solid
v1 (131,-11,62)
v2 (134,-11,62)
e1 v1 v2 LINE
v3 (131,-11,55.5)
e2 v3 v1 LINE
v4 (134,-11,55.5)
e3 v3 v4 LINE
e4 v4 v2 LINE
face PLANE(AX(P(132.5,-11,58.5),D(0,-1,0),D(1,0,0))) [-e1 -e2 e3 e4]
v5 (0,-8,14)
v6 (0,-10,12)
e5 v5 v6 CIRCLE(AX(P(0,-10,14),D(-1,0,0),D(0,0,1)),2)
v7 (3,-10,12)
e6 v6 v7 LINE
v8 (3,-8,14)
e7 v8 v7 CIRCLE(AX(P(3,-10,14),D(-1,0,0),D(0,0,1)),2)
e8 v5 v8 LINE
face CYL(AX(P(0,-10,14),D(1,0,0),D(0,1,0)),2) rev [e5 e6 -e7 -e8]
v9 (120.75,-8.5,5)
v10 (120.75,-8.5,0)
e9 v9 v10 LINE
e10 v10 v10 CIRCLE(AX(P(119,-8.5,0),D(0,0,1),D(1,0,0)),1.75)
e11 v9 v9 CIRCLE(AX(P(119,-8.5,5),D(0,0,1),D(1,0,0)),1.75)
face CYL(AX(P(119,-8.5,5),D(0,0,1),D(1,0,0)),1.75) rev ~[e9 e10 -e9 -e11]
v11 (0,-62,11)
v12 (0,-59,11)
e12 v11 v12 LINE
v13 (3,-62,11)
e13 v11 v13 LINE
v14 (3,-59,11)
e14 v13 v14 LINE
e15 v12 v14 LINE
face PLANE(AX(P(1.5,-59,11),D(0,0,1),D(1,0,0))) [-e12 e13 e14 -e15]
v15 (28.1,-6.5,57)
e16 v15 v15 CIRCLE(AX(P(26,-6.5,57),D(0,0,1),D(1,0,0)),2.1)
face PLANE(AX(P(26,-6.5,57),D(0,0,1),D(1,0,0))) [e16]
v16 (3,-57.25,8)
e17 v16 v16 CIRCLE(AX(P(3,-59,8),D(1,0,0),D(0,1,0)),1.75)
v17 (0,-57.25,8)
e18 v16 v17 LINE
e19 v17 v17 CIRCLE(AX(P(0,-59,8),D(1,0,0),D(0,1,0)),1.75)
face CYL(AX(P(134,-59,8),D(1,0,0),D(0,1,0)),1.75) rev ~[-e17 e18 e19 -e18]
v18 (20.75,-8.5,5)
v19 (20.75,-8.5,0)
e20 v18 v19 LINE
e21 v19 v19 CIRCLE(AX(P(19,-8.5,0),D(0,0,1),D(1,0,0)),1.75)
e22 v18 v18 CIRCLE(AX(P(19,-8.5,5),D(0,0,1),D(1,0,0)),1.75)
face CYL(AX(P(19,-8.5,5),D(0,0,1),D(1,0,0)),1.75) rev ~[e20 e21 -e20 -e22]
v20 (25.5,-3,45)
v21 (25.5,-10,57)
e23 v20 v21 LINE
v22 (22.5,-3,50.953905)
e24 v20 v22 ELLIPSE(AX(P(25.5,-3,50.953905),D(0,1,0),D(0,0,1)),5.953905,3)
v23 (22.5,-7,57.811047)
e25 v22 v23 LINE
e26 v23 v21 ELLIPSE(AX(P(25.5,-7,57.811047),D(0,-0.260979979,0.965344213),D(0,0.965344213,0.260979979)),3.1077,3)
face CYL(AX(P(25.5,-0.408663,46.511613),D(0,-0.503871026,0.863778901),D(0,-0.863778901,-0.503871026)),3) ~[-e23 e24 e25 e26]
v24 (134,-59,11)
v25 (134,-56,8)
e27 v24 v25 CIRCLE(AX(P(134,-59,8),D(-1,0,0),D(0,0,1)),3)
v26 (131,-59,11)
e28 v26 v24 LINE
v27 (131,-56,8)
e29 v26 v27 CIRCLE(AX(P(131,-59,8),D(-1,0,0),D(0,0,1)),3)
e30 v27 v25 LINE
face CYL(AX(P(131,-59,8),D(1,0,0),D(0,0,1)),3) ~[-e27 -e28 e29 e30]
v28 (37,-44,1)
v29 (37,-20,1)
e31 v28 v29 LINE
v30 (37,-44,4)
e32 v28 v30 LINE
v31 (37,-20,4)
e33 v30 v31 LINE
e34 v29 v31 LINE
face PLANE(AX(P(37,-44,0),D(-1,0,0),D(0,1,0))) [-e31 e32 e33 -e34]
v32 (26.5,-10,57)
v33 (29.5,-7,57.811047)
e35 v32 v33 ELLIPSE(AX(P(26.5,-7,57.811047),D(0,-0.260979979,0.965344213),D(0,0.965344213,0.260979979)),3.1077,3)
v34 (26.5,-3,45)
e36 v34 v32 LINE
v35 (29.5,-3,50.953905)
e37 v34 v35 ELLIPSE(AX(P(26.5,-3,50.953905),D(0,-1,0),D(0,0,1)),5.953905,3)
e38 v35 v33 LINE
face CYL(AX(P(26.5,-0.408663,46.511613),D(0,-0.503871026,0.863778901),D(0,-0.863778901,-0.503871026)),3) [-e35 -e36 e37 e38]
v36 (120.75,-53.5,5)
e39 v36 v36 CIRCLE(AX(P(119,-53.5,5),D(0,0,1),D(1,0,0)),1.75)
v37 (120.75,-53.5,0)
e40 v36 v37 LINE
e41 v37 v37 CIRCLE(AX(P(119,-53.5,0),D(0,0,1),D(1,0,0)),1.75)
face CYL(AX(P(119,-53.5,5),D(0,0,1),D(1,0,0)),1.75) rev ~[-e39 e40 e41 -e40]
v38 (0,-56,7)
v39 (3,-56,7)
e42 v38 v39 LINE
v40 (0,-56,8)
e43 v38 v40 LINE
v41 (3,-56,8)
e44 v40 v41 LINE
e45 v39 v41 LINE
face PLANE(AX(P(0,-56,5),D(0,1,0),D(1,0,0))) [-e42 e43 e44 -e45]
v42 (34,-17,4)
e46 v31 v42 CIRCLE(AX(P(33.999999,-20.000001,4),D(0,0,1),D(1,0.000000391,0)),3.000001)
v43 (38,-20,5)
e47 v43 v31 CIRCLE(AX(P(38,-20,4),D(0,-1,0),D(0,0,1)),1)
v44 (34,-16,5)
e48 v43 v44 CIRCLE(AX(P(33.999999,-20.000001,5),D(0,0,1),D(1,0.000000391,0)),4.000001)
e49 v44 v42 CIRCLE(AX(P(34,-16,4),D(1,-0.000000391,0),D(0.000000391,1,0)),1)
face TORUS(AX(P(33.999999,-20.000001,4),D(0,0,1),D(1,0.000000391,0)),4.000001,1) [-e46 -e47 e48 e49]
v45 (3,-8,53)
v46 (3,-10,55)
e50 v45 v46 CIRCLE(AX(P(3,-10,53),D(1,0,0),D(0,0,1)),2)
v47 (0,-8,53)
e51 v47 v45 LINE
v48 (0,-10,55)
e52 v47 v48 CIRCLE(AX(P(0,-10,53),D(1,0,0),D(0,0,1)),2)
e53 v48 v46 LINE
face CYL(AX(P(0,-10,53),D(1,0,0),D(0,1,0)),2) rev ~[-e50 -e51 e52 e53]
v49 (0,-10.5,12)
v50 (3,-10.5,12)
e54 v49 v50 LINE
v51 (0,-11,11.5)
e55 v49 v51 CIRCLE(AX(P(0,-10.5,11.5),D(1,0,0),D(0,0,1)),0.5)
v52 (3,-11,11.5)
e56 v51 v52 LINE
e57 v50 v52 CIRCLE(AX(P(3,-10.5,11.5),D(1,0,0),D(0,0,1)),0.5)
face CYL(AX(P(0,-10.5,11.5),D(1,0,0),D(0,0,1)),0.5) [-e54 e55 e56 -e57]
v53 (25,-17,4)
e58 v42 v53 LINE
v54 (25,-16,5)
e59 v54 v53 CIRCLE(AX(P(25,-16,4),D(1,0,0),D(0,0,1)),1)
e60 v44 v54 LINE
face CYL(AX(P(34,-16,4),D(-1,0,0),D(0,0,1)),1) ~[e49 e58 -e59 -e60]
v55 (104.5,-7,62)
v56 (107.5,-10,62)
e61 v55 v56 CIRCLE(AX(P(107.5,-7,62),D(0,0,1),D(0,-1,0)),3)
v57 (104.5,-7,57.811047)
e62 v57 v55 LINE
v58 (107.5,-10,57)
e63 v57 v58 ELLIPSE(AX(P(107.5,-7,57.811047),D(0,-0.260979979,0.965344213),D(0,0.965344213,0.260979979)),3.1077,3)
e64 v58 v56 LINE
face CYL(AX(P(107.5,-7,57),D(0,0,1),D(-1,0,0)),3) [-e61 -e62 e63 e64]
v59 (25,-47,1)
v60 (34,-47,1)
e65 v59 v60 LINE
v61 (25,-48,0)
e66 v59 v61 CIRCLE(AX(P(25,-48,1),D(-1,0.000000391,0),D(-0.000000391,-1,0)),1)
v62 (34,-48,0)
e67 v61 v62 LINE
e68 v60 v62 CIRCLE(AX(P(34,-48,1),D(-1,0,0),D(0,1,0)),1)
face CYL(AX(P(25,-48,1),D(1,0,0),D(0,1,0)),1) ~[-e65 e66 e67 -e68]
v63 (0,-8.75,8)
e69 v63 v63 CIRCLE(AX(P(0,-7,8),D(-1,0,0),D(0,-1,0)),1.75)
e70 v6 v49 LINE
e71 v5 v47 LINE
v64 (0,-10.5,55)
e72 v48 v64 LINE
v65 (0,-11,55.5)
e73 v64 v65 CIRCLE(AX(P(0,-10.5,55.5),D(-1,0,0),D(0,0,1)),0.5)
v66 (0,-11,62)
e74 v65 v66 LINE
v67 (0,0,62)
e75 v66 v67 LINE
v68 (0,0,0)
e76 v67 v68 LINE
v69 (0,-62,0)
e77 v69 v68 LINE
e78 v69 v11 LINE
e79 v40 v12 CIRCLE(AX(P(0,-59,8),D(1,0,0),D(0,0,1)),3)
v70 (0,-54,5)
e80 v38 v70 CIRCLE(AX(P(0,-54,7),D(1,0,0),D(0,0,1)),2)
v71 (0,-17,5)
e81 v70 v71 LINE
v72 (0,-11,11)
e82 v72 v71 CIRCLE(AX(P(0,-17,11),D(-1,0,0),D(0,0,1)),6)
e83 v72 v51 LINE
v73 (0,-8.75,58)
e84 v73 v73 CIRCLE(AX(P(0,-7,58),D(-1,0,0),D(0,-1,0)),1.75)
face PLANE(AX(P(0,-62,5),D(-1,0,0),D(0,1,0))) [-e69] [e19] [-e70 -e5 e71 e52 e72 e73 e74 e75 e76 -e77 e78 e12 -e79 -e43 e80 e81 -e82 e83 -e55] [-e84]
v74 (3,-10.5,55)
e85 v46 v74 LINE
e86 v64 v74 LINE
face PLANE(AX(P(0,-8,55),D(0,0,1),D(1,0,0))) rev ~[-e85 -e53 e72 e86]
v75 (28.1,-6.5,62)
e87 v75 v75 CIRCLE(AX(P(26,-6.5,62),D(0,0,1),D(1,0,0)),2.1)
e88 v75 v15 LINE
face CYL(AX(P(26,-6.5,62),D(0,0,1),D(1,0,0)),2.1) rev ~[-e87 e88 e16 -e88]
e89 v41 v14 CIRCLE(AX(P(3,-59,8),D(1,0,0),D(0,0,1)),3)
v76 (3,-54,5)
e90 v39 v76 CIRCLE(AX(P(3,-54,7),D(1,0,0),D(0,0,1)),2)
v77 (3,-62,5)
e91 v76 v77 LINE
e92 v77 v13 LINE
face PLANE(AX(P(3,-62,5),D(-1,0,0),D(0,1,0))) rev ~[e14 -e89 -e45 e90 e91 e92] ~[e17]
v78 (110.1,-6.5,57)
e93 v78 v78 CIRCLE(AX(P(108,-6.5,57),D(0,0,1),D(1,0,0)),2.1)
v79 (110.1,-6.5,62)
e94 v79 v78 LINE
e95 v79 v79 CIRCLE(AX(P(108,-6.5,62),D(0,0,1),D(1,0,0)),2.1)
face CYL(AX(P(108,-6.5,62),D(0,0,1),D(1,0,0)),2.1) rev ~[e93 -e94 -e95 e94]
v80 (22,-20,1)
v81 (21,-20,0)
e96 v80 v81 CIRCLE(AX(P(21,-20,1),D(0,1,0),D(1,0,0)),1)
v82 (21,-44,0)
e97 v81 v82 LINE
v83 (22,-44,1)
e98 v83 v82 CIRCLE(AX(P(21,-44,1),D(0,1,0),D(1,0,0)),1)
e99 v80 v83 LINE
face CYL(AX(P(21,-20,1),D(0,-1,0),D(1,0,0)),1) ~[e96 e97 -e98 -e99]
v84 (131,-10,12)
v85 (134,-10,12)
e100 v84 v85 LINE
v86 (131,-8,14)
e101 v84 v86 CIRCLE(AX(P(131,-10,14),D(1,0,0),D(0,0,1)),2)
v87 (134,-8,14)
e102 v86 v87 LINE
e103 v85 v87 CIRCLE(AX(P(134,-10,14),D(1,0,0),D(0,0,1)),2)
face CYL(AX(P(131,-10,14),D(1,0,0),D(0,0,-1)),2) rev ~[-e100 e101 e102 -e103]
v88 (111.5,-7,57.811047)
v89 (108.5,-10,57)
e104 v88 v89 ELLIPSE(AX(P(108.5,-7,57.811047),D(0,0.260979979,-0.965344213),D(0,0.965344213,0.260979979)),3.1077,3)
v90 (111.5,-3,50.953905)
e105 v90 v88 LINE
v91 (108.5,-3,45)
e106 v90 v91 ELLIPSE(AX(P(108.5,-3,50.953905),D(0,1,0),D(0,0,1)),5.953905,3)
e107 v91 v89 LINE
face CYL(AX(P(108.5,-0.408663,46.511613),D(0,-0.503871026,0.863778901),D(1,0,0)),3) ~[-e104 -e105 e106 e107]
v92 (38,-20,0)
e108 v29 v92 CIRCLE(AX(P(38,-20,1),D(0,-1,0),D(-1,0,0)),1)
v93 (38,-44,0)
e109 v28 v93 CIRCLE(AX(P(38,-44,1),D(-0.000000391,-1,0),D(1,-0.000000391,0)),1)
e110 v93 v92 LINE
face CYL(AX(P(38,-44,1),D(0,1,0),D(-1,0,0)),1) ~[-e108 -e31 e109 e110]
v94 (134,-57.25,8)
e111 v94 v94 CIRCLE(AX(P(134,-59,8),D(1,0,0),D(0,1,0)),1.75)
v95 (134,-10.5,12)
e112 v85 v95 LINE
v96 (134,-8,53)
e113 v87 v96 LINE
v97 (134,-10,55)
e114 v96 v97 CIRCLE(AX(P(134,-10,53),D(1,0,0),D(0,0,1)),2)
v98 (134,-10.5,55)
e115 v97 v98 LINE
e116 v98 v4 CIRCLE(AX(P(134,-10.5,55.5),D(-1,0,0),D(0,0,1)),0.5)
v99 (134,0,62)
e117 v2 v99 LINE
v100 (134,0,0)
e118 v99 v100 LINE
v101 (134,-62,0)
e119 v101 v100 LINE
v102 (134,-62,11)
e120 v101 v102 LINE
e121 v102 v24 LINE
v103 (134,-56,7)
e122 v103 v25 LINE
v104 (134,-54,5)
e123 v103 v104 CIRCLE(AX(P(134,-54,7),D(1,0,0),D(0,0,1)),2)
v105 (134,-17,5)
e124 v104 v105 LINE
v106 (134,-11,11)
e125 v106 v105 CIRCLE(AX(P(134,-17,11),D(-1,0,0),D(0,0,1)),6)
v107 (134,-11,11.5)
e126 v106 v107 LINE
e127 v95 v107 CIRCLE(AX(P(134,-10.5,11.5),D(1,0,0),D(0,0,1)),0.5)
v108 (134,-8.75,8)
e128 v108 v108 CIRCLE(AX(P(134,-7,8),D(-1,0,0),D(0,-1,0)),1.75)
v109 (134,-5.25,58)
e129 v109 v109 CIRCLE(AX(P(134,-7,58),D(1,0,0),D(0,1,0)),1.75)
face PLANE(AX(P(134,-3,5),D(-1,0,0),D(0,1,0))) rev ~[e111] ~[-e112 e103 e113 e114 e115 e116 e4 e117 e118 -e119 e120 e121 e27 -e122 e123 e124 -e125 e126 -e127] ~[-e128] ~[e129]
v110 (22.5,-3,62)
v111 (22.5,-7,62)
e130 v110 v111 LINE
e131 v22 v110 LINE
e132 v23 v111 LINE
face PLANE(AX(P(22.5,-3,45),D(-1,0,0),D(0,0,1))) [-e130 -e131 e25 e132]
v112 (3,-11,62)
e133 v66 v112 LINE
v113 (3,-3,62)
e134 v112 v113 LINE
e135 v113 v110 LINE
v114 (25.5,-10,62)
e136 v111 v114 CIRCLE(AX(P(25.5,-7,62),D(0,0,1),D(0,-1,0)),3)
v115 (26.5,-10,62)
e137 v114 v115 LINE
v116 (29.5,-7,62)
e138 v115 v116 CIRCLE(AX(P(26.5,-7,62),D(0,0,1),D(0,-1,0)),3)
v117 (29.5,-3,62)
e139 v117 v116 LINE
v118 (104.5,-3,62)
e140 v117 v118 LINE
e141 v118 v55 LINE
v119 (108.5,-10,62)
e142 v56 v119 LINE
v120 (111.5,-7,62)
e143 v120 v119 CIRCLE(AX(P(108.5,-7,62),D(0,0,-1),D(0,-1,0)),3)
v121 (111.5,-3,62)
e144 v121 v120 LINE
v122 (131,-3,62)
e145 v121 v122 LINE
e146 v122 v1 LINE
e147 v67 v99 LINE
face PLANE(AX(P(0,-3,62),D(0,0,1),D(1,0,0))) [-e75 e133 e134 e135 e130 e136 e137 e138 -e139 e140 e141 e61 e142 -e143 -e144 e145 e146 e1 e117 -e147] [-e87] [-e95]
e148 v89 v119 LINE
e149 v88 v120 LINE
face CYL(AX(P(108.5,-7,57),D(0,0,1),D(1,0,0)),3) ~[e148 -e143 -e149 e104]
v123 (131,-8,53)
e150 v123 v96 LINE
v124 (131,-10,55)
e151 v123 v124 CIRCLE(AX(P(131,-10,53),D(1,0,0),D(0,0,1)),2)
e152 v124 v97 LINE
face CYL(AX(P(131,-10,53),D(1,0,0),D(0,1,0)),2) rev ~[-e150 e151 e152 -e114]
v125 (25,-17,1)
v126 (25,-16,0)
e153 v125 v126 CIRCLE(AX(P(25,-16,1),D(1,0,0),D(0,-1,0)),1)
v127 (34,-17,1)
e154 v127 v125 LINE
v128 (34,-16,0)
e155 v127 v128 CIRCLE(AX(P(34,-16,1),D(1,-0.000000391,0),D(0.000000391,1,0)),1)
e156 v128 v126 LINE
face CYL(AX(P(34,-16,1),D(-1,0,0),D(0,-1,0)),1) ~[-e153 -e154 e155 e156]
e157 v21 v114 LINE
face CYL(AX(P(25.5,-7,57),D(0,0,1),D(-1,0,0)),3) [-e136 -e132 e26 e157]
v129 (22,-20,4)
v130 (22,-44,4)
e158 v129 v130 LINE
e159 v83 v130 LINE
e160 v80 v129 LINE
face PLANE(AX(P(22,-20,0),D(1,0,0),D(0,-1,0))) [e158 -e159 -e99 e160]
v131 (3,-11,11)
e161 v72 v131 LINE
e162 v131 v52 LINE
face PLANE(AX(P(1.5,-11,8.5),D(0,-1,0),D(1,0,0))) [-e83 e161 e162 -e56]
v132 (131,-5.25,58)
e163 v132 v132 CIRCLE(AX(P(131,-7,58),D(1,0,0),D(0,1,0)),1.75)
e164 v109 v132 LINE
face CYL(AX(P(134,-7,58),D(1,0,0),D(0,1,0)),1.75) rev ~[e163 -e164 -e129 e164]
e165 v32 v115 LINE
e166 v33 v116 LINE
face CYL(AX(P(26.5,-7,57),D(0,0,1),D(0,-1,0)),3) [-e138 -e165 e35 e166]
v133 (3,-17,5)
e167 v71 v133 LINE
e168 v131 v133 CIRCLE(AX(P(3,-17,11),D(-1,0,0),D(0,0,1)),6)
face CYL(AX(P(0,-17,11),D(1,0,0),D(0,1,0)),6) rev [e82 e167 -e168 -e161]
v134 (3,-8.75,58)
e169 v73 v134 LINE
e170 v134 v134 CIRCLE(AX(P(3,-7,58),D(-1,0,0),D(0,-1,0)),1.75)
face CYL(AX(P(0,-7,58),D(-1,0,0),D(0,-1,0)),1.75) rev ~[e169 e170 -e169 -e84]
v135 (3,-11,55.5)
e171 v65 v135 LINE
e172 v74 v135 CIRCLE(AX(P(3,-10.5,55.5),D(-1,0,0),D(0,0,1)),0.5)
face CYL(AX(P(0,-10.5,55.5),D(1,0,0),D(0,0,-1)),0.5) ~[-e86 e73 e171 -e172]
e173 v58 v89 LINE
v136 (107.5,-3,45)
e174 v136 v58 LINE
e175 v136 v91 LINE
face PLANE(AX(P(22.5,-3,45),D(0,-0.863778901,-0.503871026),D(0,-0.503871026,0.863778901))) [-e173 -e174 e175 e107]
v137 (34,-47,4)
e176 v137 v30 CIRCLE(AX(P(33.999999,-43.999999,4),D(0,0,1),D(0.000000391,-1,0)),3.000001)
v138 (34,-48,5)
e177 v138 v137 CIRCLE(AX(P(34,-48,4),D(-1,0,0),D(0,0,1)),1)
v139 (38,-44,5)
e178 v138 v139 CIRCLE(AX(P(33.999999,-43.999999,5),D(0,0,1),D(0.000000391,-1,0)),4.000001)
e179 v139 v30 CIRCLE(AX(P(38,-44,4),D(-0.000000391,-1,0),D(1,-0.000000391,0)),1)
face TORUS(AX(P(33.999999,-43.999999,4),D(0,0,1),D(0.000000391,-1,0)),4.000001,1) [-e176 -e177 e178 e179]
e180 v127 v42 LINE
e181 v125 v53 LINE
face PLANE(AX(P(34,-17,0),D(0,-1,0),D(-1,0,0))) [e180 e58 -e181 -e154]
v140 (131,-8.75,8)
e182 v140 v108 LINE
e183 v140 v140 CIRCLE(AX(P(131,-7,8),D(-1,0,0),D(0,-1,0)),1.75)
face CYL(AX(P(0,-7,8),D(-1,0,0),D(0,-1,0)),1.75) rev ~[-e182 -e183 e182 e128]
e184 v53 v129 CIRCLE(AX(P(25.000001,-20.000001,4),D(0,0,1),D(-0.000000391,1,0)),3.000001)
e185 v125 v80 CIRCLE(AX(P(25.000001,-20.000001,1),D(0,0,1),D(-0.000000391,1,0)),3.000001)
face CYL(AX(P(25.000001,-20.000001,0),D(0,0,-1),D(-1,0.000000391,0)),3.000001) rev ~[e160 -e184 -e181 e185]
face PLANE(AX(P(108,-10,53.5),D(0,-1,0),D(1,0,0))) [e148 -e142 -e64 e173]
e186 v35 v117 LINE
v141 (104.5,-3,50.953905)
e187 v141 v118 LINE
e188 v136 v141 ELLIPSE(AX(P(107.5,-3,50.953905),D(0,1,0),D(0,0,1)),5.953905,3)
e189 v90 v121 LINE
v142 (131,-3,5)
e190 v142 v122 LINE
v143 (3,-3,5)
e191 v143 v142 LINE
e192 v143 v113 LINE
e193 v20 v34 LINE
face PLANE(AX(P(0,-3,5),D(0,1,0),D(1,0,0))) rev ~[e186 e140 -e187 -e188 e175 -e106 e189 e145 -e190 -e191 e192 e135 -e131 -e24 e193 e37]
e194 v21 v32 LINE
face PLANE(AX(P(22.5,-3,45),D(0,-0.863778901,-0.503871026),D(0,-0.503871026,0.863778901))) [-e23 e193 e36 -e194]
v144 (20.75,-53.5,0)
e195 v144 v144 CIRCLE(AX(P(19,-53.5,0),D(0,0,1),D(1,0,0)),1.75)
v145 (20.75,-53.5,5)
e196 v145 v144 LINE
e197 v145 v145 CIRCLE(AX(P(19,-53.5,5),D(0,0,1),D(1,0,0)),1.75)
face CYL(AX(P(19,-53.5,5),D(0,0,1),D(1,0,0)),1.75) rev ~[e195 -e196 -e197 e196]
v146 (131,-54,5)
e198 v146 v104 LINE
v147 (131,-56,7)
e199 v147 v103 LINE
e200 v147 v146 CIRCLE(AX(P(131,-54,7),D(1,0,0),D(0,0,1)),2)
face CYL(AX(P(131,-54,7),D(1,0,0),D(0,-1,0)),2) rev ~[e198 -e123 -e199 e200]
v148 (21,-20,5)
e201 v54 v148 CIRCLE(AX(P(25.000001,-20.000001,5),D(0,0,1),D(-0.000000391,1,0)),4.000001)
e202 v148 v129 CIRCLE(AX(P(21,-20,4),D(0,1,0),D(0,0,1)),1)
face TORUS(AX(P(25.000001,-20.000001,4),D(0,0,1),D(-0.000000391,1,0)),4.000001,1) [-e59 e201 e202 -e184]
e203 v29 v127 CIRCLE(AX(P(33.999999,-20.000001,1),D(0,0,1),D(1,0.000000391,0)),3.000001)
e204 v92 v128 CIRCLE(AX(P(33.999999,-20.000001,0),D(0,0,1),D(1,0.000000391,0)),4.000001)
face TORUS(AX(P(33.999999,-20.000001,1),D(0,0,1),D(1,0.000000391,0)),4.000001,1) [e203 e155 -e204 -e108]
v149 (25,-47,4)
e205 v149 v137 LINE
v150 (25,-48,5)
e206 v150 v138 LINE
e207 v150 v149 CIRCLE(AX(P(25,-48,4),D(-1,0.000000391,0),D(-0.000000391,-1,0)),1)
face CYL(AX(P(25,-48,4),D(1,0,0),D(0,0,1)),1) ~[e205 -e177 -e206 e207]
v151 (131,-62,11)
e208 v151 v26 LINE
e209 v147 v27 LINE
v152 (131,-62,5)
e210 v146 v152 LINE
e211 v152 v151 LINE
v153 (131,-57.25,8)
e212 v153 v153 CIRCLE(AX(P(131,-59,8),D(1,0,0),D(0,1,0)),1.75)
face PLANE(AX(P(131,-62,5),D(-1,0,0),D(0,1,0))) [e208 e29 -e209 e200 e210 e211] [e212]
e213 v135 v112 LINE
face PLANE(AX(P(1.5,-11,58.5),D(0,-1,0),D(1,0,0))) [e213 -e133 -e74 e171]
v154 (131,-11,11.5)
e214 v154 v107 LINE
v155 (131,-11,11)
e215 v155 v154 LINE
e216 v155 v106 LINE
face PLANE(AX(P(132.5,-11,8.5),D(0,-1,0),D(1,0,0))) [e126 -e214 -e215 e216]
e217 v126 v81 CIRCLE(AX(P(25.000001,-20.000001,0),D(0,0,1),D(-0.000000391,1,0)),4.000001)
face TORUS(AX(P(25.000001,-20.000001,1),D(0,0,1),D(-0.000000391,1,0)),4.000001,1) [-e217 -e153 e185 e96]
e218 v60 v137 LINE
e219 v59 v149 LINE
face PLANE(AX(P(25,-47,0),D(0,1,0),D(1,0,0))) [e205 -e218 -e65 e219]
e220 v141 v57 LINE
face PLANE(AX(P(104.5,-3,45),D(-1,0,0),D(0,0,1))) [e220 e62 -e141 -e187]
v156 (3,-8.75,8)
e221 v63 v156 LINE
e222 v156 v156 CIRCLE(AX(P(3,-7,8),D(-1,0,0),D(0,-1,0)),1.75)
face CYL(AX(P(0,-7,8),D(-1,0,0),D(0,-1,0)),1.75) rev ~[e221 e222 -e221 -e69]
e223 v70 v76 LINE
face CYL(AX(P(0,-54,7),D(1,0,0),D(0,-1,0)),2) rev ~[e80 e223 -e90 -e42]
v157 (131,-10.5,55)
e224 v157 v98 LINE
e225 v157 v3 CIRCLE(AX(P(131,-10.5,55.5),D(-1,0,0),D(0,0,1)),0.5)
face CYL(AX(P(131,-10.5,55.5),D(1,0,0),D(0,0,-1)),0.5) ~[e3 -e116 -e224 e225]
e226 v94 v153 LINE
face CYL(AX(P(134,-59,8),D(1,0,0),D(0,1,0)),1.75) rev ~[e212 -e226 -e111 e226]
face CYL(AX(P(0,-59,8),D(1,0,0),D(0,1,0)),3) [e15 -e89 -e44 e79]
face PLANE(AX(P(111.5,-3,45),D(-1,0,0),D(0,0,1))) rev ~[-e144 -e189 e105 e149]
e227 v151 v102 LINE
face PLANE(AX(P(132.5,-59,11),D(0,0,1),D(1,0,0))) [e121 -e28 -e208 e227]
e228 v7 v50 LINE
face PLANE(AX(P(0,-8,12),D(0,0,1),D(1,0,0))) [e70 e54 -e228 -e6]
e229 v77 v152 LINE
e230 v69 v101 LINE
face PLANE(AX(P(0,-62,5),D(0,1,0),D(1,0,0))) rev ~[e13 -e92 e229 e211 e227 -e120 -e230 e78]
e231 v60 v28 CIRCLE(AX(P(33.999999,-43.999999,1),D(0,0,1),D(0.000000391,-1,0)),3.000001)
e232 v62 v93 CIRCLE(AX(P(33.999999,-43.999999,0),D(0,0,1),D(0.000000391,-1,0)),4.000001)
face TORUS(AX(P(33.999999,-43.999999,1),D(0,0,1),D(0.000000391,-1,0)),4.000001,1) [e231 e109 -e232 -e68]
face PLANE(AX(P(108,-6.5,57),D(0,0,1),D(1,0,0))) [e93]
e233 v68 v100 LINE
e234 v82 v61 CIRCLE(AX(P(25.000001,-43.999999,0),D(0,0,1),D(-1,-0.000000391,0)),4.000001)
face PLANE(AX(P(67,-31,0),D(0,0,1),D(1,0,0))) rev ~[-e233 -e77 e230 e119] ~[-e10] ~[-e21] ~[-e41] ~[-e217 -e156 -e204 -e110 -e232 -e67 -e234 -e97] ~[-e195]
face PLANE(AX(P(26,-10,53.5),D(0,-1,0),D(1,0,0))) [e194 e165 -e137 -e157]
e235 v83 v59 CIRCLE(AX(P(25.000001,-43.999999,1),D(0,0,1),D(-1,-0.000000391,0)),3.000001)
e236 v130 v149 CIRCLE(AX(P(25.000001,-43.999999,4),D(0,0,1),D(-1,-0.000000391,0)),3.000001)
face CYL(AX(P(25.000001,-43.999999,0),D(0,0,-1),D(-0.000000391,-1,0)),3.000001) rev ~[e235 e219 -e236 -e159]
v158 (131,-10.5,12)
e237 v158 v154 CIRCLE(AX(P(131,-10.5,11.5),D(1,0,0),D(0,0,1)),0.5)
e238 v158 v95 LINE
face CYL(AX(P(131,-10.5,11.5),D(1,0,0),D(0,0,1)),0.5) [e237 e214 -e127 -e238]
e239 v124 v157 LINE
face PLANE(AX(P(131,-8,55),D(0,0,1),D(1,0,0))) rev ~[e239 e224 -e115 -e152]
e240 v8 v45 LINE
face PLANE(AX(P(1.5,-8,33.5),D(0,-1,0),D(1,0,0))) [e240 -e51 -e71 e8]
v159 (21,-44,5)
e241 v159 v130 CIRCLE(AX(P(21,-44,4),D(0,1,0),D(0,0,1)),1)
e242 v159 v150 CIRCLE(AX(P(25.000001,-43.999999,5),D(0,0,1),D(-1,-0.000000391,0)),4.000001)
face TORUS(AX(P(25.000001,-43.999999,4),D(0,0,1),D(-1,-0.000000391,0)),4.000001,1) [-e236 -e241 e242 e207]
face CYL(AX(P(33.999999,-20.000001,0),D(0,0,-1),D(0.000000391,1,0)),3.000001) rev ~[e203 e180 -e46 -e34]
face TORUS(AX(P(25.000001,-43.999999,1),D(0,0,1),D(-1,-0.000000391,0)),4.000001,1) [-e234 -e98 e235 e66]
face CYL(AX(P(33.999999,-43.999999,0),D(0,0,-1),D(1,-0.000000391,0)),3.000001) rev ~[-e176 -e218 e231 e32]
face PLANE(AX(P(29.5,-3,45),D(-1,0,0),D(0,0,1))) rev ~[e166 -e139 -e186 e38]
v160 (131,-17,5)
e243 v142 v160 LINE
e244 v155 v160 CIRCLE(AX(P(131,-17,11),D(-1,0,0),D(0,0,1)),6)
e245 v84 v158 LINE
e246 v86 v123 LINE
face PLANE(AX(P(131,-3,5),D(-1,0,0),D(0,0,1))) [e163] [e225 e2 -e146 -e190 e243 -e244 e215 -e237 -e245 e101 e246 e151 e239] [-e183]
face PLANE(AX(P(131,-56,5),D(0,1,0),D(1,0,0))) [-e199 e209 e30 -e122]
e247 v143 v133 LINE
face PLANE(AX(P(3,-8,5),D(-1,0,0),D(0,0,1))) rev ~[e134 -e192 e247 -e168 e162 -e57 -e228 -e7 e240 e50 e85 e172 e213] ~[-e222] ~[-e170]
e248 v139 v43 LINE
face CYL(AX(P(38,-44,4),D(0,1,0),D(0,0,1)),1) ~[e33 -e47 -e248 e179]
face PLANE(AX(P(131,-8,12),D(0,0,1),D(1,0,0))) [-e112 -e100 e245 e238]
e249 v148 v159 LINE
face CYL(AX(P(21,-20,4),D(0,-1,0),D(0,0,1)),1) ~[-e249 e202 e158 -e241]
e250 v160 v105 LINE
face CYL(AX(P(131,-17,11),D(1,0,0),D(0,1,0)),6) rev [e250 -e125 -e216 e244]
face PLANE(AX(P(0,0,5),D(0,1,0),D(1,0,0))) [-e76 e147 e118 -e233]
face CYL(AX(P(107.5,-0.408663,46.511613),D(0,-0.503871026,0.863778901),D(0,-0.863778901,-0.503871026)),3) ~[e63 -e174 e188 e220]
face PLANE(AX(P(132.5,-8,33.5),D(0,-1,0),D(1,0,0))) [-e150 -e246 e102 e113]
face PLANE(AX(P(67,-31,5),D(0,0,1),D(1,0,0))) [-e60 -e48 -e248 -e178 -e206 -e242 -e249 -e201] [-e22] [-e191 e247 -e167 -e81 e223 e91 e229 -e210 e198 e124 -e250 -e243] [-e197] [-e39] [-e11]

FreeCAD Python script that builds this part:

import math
import FreeCAD as App
import Part
import Sketcher
from FreeCAD import Vector
Q = App.Units.Quantity


def edges_at(feature, points):
    """Names of the edges that pass closest to the given points."""
    edges = feature.Shape.Edges
    near = lambda p: min(range(len(edges)), key=lambda i: edges[i].distToShape(Part.Vertex(*p))[0])
    return sorted({f"Edge{near(p) + 1}" for p in points})


def add_polygon(sketch, points):
    """Adds a closed chain of lines whose ends are joined by coincident constraints."""
    first, n = sketch.GeometryCount, len(points)
    for a, b in zip(points, points[1:] + points[:1]):
        sketch.addGeometry(Part.LineSegment(App.Vector(*a, 0), App.Vector(*b, 0)), False)
    for i in range(n):
        sketch.addConstraint(Sketcher.Constraint("Coincident", first + i, 2, first + (i + 1) % n, 1))

doc = App.newDocument("Part")
params = doc.addObject("Spreadsheet::Sheet", "Params")
for row, (alias, value) in enumerate([
    ("sketch1_width", "134 mm"),
    ("sketch1_height", "62 mm"),
    ("pad1_length", "5 mm"),
    ("sketch2_width", "134 mm"),
    ("sketch2_height", "3 mm"),
    ("pad2_length", "57 mm"),
    ("sketch3_width", "7 mm"),
    ("sketch3_height", "17 mm"),
    ("pad3_length", "7 mm"),
    ("sketch4_width", "7 mm"),
    ("sketch4_height", "12 mm"),
    ("pocket1_length", "89 mm"),
    ("fillet_radius", "3 mm"),
    ("sketch5_width", "3 mm"),
    ("sketch5_height", "57 mm"),
    ("pad4_length", "5 mm"),
    ("sketch6_width", "3 mm"),
    ("sketch6_height", "7 mm"),
    ("pad5_length", "3 mm"),
    ("sketch7_diameter", "3.5 mm"),
    ("sketch8_diameter", "3.5 mm"),
    ("pocket3_length", "5 mm"),
    ("sketch9_diameter", "3.5 mm"),
    ("pocket4_length", "5 mm"),
    ("sketch10_width", "3 mm"),
    ("sketch10_height", "6 mm"),
    ("pad6_length", "6 mm"),
    ("sketch11_diameter", "3.5 mm"),
    ("fillet2_radius", "3 mm"),
    ("fillet3_radius", "2 mm"),
    ("fillet4_radius", "3 mm"),
    ("fillet5_radius", "2 mm"),
    ("fillet6_radius", "6 mm"),
    ("fillet7_radius", "6 mm"),
    ("fillet8_radius", "2 mm"),
    ("fillet9_radius", "0.5 mm"),
    ("fillet10_radius", "2 mm"),
    ("fillet11_radius", "0.5 mm"),
    ("fillet12_radius", "2 mm"),
    ("fillet13_radius", "0.5 mm"),
    ("fillet14_radius", "2 mm"),
    ("fillet15_radius", "0.5 mm"),
    ("sketch12_diameter", "3.5 mm"),
    ("pocket6_length", "5 mm"),
    ("sketch13_diameter", "4.2 mm"),
    ("pocket7_length", "5 mm"),
    ("sketch14_radius", "3.000001 mm"),
    ("sketch14_width", "9 mm"),
    ("sketch14_height", "24 mm"),
    ("pocket8_length", "5 mm"),
    ("fillet16_radius", "1 mm"),
    ("fillet17_radius", "1 mm"),
], start=1):
    params.set(f"A{row}", alias)
    params.set(f"B{row}", "=" + value)
    params.setAlias(f"B{row}", alias)

body = doc.addObject("PartDesign::Body", "Body")

# Sketch on XY plane
sketch1 = body.newObject("Sketcher::SketchObject", "Sketch")
sketch1.AttachmentSupport = (doc.getObject("XY_Plane"), [""])
sketch1.MapMode = "FlatFace"
add_polygon(sketch1, [(0, 0), (0, -62), (134, -62), (134, 0)])  # lines 0-3
sketch1.addConstraint(Sketcher.Constraint("Vertical", 0))
sketch1.addConstraint(Sketcher.Constraint("Horizontal", 1))
sketch1.addConstraint(Sketcher.Constraint("Vertical", 2))
sketch1.addConstraint(Sketcher.Constraint("Horizontal", 3))
sketch1.addConstraint(Sketcher.Constraint("Coincident", 3, 2, -1, 1))
sketch1.addConstraint(Sketcher.Constraint("DistanceX", 1, 1, 1, 2, Q("134 mm")))
sketch1.addConstraint(Sketcher.Constraint("DistanceY", 0, 2, 0, 1, Q("62 mm")))
sketch1.setExpression("Constraints[9]", "Params.sketch1_width")
sketch1.setExpression("Constraints[10]", "Params.sketch1_height")
pad1 = body.newObject("PartDesign::Pad", "Pad")
pad1.Profile = sketch1
pad1.setExpression("Length", "Params.pad1_length")

# Sketch on XY plane
sketch2 = body.newObject("Sketcher::SketchObject", "Sketch001")
sketch2.AttachmentSupport = (doc.getObject("XY_Plane"), [""])
sketch2.MapMode = "FlatFace"
sketch2.AttachmentOffset = App.Placement(Vector(0, 0, 5), App.Rotation())
add_polygon(sketch2, [(0, 0), (0, -3), (134, -3), (134, 0)])  # lines 0-3
sketch2.addConstraint(Sketcher.Constraint("Vertical", 0))
sketch2.addConstraint(Sketcher.Constraint("Horizontal", 1))
sketch2.addConstraint(Sketcher.Constraint("Vertical", 2))
sketch2.addConstraint(Sketcher.Constraint("Horizontal", 3))
sketch2.addConstraint(Sketcher.Constraint("Coincident", 3, 2, -1, 1))
sketch2.addConstraint(Sketcher.Constraint("DistanceX", 1, 1, 1, 2, Q("134 mm")))
sketch2.addConstraint(Sketcher.Constraint("DistanceY", 0, 2, 0, 1, Q("3 mm")))
sketch2.setExpression("Constraints[9]", "Params.sketch2_width")
sketch2.setExpression("Constraints[10]", "Params.sketch2_height")
pad2 = body.newObject("PartDesign::Pad", "Pad001")
pad2.Profile = sketch2
pad2.setExpression("Length", "Params.pad2_length")

# Sketch on XZ plane
sketch3 = body.newObject("Sketcher::SketchObject", "Sketch002")
sketch3.AttachmentSupport = (doc.getObject("XZ_Plane"), [""])
sketch3.MapMode = "FlatFace"
sketch3.AttachmentOffset = App.Placement(Vector(0, 0, 3), App.Rotation())
add_polygon(sketch3, [(22, 62), (22, 45), (30, 45), (30, 62)])  # lines 0-3
add_polygon(sketch3, [(104, 62), (104, 45), (112, 45), (112, 62)])  # lines 4-7
sketch3.addConstraint(Sketcher.Constraint("Vertical", 0))
sketch3.addConstraint(Sketcher.Constraint("Horizontal", 1))
sketch3.addConstraint(Sketcher.Constraint("Vertical", 2))
sketch3.addConstraint(Sketcher.Constraint("Horizontal", 3))
sketch3.addConstraint(Sketcher.Constraint("Vertical", 4))
sketch3.addConstraint(Sketcher.Constraint("Horizontal", 5))
sketch3.addConstraint(Sketcher.Constraint("Vertical", 6))
sketch3.addConstraint(Sketcher.Constraint("Horizontal", 7))
sketch3.addConstraint(Sketcher.Constraint("Horizontal", 1, 2, 4, 2))
sketch3.addConstraint(Sketcher.Constraint("Horizontal", 3, 2, 6, 2))
sketch3.addConstraint(Sketcher.Constraint("Equal", 3, 5))
sketch3.addConstraint(Sketcher.Constraint("DistanceX", 1, 1, 1, 2, Q("7 mm")))
sketch3.addConstraint(Sketcher.Constraint("DistanceY", 0, 2, 0, 1, Q("17 mm")))
sketch3.addConstraint(Sketcher.Constraint("DistanceY", -1, 1, 0, 2, Q("45 mm")))
sketch3.addConstraint(Sketcher.Constraint("DistanceX", 1, 2, 4, 2, Q("75 mm")))
sketch3.addConstraint(Sketcher.Constraint("DistanceX", -1, 1, 0, 2, Q("22.5 mm")))
sketch3.setExpression("Constraints[19]", "Params.sketch3_width")
sketch3.setExpression("Constraints[20]", "Params.sketch3_height")
pad3 = body.newObject("PartDesign::Pad", "Pad002")
pad3.Profile = sketch3
pad3.setExpression("Length", "Params.pad3_length")

# Sketch on YZ plane
sketch4 = body.newObject("Sketcher::SketchObject", "Sketch003")
sketch4.AttachmentSupport = (doc.getObject("YZ_Plane"), [""])
sketch4.MapMode = "FlatFace"
sketch4.AttachmentOffset = App.Placement(Vector(0, 0, 22.5), App.Rotation())
add_polygon(sketch4, [(-10, 57), (-3, 45), (-10, 45)])  # lines 0-2
sketch4.addConstraint(Sketcher.Constraint("Horizontal", 1))
sketch4.addConstraint(Sketcher.Constraint("Vertical", 2))
sketch4.addConstraint(Sketcher.Constraint("DistanceX", 1, 2, 1, 1, Q("7 mm")))
sketch4.addConstraint(Sketcher.Constraint("DistanceY", 2, 1, 2, 2, Q("12 mm")))
sketch4.addConstraint(Sketcher.Constraint("DistanceX", 0, 2, -1, 1, Q("3 mm")))
sketch4.addConstraint(Sketcher.Constraint("DistanceY", -1, 1, 0, 2, Q("45 mm")))
sketch4.setExpression("Constraints[5]", "Params.sketch4_width")
sketch4.setExpression("Constraints[6]", "Params.sketch4_height")
pocket1 = body.newObject("PartDesign::Pocket", "Pocket")
pocket1.Profile = sketch4
pocket1.setExpression("Length", "Params.pocket1_length")
pocket1.Reversed = True
doc.recompute()

fillet = body.newObject("PartDesign::Fillet", "Fillet")
fillet.Base = (pocket1, edges_at(pocket1, [
    (104.5, -10, 59.5),
    (111.5, -10, 59.5),
    (111.5, -6.5, 51),
    (104.5, -6.5, 51),
    (22.5, -10, 59.5),
    (29.5, -10, 59.5),
    (29.5, -6.5, 51),
    (22.5, -6.5, 51),
]))
fillet.setExpression("Radius", "Params.fillet_radius")

# Sketch on XZ plane
sketch5 = body.newObject("Sketcher::SketchObject", "Sketch004")
sketch5.AttachmentSupport = (doc.getObject("XZ_Plane"), [""])
sketch5.MapMode = "FlatFace"
sketch5.AttachmentOffset = App.Placement(Vector(0, 0, 3), App.Rotation())
add_polygon(sketch5, [(0, 62), (0, 5), (3, 5), (3, 62)])  # lines 0-3
add_polygon(sketch5, [(131, 62), (131, 5), (134, 5), (134, 62)])  # lines 4-7
sketch5.addConstraint(Sketcher.Constraint("Vertical", 0))
sketch5.addConstraint(Sketcher.Constraint("Horizontal", 1))
sketch5.addConstraint(Sketcher.Constraint("Vertical", 2))
sketch5.addConstraint(Sketcher.Constraint("Horizontal", 3))
sketch5.addConstraint(Sketcher.Constraint("Vertical", 4))
sketch5.addConstraint(Sketcher.Constraint("Horizontal", 5))
sketch5.addConstraint(Sketcher.Constraint("Vertical", 6))
sketch5.addConstraint(Sketcher.Constraint("Horizontal", 7))
sketch5.addConstraint(Sketcher.Constraint("PointOnObject", 0, 2, -2))
sketch5.addConstraint(Sketcher.Constraint("Horizontal", 1, 2, 4, 2))
sketch5.addConstraint(Sketcher.Constraint("Horizontal", 3, 2, 6, 2))
sketch5.addConstraint(Sketcher.Constraint("Equal", 3, 5))
sketch5.addConstraint(Sketcher.Constraint("DistanceX", 1, 1, 1, 2, Q("3 mm")))
sketch5.addConstraint(Sketcher.Constraint("DistanceY", 0, 2, 0, 1, Q("57 mm")))
sketch5.addConstraint(Sketcher.Constraint("DistanceY", -1, 1, 0, 2, Q("5 mm")))
sketch5.addConstraint(Sketcher.Constraint("DistanceX", -1, 1, 4, 2, Q("131 mm")))
sketch5.setExpression("Constraints[20]", "Params.sketch5_width")
sketch5.setExpression("Constraints[21]", "Params.sketch5_height")
pad4 = body.newObject("PartDesign::Pad", "Pad003")
pad4.Profile = sketch5
pad4.setExpression("Length", "Params.pad4_length")

# Sketch on XZ plane
sketch6 = body.newObject("Sketcher::SketchObject", "Sketch005")
sketch6.AttachmentSupport = (doc.getObject("XZ_Plane"), [""])
sketch6.MapMode = "FlatFace"
sketch6.AttachmentOffset = App.Placement(Vector(0, 0, 8), App.Rotation())
add_polygon(sketch6, [(0, 12), (0, 5), (3, 5), (3, 12)])  # lines 0-3
add_polygon(sketch6, [(0, 62), (0, 55), (3, 55), (3, 62)])  # lines 4-7
add_polygon(sketch6, [(131, 12), (131, 5), (134, 5), (134, 12)])  # lines 8-11
add_polygon(sketch6, [(131, 62), (131, 55), (134, 55), (134, 62)])  # lines 12-15
sketch6.addConstraint(Sketcher.Constraint("Vertical", 0))
sketch6.addConstraint(Sketcher.Constraint("Horizontal", 1))
sketch6.addConstraint(Sketcher.Constraint("Vertical", 2))
sketch6.addConstraint(Sketcher.Constraint("Horizontal", 3))
sketch6.addConstraint(Sketcher.Constraint("Vertical", 4))
sketch6.addConstraint(Sketcher.Constraint("Horizontal", 5))
sketch6.addConstraint(Sketcher.Constraint("Vertical", 6))
sketch6.addConstraint(Sketcher.Constraint("Horizontal", 7))
sketch6.addConstraint(Sketcher.Constraint("Vertical", 8))
sketch6.addConstraint(Sketcher.Constraint("Horizontal", 9))
sketch6.addConstraint(Sketcher.Constraint("Vertical", 10))
sketch6.addConstraint(Sketcher.Constraint("Horizontal", 11))
sketch6.addConstraint(Sketcher.Constraint("Vertical", 12))
sketch6.addConstraint(Sketcher.Constraint("Horizontal", 13))
sketch6.addConstraint(Sketcher.Constraint("Vertical", 14))
sketch6.addConstraint(Sketcher.Constraint("Horizontal", 15))
sketch6.addConstraint(Sketcher.Constraint("PointOnObject", 0, 2, -2))
sketch6.addConstraint(Sketcher.Constraint("PointOnObject", 4, 2, -2))
sketch6.addConstraint(Sketcher.Constraint("Horizontal", 1, 2, 8, 2))
sketch6.addConstraint(Sketcher.Constraint("Horizontal", 3, 2, 10, 2))
sketch6.addConstraint(Sketcher.Constraint("Horizontal", 5, 2, 12, 2))
sketch6.addConstraint(Sketcher.Constraint("Horizontal", 7, 2, 14, 2))
sketch6.addConstraint(Sketcher.Constraint("Vertical", 2, 2, 5, 2))
sketch6.addConstraint(Sketcher.Constraint("Vertical", 11, 2, 12, 2))
sketch6.addConstraint(Sketcher.Constraint("Vertical", 10, 2, 13, 2))
sketch6.addConstraint(Sketcher.Constraint("Equal", 7, 9))
sketch6.addConstraint(Sketcher.Constraint("Equal", 2, 4))
sketch6.addConstraint(Sketcher.Constraint("DistanceX", 1, 1, 1, 2, Q("3 mm")))
sketch6.addConstraint(Sketcher.Constraint("DistanceY", 0, 2, 0, 1, Q("7 mm")))
sketch6.addConstraint(Sketcher.Constraint("DistanceY", -1, 1, 0, 2, Q("5 mm")))
sketch6.addConstraint(Sketcher.Constraint("DistanceY", -1, 1, 4, 2, Q("55 mm")))
sketch6.addConstraint(Sketcher.Constraint("DistanceX", -1, 1, 8, 2, Q("131 mm")))
sketch6.setExpression("Constraints[43]", "Params.sketch6_width")
sketch6.setExpression("Constraints[44]", "Params.sketch6_height")
pad5 = body.newObject("PartDesign::Pad", "Pad004")
pad5.Profile = sketch6
pad5.setExpression("Length", "Params.pad5_length")

# Sketch on YZ plane
sketch7 = body.newObject("Sketcher::SketchObject", "Sketch006")
sketch7.AttachmentSupport = (doc.getObject("YZ_Plane"), [""])
sketch7.MapMode = "FlatFace"
sketch7.addGeometry(Part.Circle(Vector(-7, 8, 0), Vector(0, 0, 1), 1.8), False)
sketch7.addConstraint(Sketcher.Constraint("Diameter", 0, Q("3.5 mm")))
sketch7.addConstraint(Sketcher.Constraint("DistanceX", 0, 3, -1, 1, Q("7 mm")))
sketch7.addConstraint(Sketcher.Constraint("DistanceY", -1, 1, 0, 3, Q("8 mm")))
sketch7.setExpression("Constraints[0]", "Params.sketch7_diameter")
pocket2 = body.newObject("PartDesign::Pocket", "Pocket001")
pocket2.Profile = sketch7
pocket2.Type = "ThroughAll"
pocket2.Reversed = True

# Sketch on YZ plane
sketch8 = body.newObject("Sketcher::SketchObject", "Sketch007")
sketch8.AttachmentSupport = (doc.getObject("YZ_Plane"), [""])
sketch8.MapMode = "FlatFace"
sketch8.addGeometry(Part.Circle(Vector(-7, 58, 0), Vector(0, 0, 1), 1.8), False)
sketch8.addConstraint(Sketcher.Constraint("Diameter", 0, Q("3.5 mm")))
sketch8.addConstraint(Sketcher.Constraint("DistanceX", 0, 3, -1, 1, Q("7 mm")))
sketch8.addConstraint(Sketcher.Constraint("DistanceY", -1, 1, 0, 3, Q("58 mm")))
sketch8.setExpression("Constraints[0]", "Params.sketch8_diameter")
pocket3 = body.newObject("PartDesign::Pocket", "Pocket002")
pocket3.Profile = sketch8
pocket3.setExpression("Length", "Params.pocket3_length")
pocket3.Reversed = True

# Sketch on YZ plane
sketch9 = body.newObject("Sketcher::SketchObject", "Sketch008")
sketch9.AttachmentSupport = (doc.getObject("YZ_Plane"), [""])
sketch9.MapMode = "FlatFace"
sketch9.AttachmentOffset = App.Placement(Vector(0, 0, 134), App.Rotation())
sketch9.addGeometry(Part.Circle(Vector(-7, 58, 0), Vector(0, 0, 1), 1.8), False)
sketch9.addConstraint(Sketcher.Constraint("Diameter", 0, Q("3.5 mm")))
sketch9.addConstraint(Sketcher.Constraint("DistanceX", 0, 3, -1, 1, Q("7 mm")))
sketch9.addConstraint(Sketcher.Constraint("DistanceY", -1, 1, 0, 3, Q("58 mm")))
sketch9.setExpression("Constraints[0]", "Params.sketch9_diameter")
pocket4 = body.newObject("PartDesign::Pocket", "Pocket003")
pocket4.Profile = sketch9
pocket4.setExpression("Length", "Params.pocket4_length")

# Sketch on XY plane
sketch10 = body.newObject("Sketcher::SketchObject", "Sketch009")
sketch10.AttachmentSupport = (doc.getObject("XY_Plane"), [""])
sketch10.MapMode = "FlatFace"
sketch10.AttachmentOffset = App.Placement(Vector(0, 0, 5), App.Rotation())
add_polygon(sketch10, [(0, -56), (0, -62), (3, -62), (3, -56)])  # lines 0-3
add_polygon(sketch10, [(131, -56), (131, -62), (134, -62), (134, -56)])  # lines 4-7
sketch10.addConstraint(Sketcher.Constraint("Vertical", 0))
sketch10.addConstraint(Sketcher.Constraint("Horizontal", 1))
sketch10.addConstraint(Sketcher.Constraint("Vertical", 2))
sketch10.addConstraint(Sketcher.Constraint("Horizontal", 3))
sketch10.addConstraint(Sketcher.Constraint("Vertical", 4))
sketch10.addConstraint(Sketcher.Constraint("Horizontal", 5))
sketch10.addConstraint(Sketcher.Constraint("Vertical", 6))
sketch10.addConstraint(Sketcher.Constraint("Horizontal", 7))
sketch10.addConstraint(Sketcher.Constraint("PointOnObject", 0, 2, -2))
sketch10.addConstraint(Sketcher.Constraint("Horizontal", 1, 2, 4, 2))
sketch10.addConstraint(Sketcher.Constraint("Horizontal", 3, 2, 6, 2))
sketch10.addConstraint(Sketcher.Constraint("Equal", 3, 5))
sketch10.addConstraint(Sketcher.Constraint("DistanceX", 1, 1, 1, 2, Q("3 mm")))
sketch10.addConstraint(Sketcher.Constraint("DistanceY", 0, 2, 0, 1, Q("6 mm")))
sketch10.addConstraint(Sketcher.Constraint("DistanceY", 0, 2, -1, 1, Q("62 mm")))
sketch10.addConstraint(Sketcher.Constraint("DistanceX", -1, 1, 4, 2, Q("131 mm")))
sketch10.setExpression("Constraints[20]", "Params.sketch10_width")
sketch10.setExpression("Constraints[21]", "Params.sketch10_height")
pad6 = body.newObject("PartDesign::Pad", "Pad005")
pad6.Profile = sketch10
pad6.setExpression("Length", "Params.pad6_length")

# Sketch on YZ plane
sketch11 = body.newObject("Sketcher::SketchObject", "Sketch010")
sketch11.AttachmentSupport = (doc.getObject("YZ_Plane"), [""])
sketch11.MapMode = "FlatFace"
sketch11.AttachmentOffset = App.Placement(Vector(0, 0, 134), App.Rotation())
sketch11.addGeometry(Part.Circle(Vector(-59, 8, 0), Vector(0, 0, 1), 1.8), False)
sketch11.addConstraint(Sketcher.Constraint("Diameter", 0, Q("3.5 mm")))
sketch11.addConstraint(Sketcher.Constraint("DistanceX", 0, 3, -1, 1, Q("59 mm")))
sketch11.addConstraint(Sketcher.Constraint("DistanceY", -1, 1, 0, 3, Q("8 mm")))
sketch11.setExpression("Constraints[0]", "Params.sketch11_diameter")
pocket5 = body.newObject("PartDesign::Pocket", "Pocket004")
pocket5.Profile = sketch11
pocket5.Type = "ThroughAll"
doc.recompute()

fillet2 = body.newObject("PartDesign::Fillet", "Fillet001")
fillet2.Base = (pocket5, edges_at(pocket5, [(132.5, -56, 11)]))
fillet2.setExpression("Radius", "Params.fillet2_radius")
doc.recompute()

fillet3 = body.newObject("PartDesign::Fillet", "Fillet002")
fillet3.Base = (fillet2, edges_at(fillet2, [(132.5, -56, 5)]))
fillet3.setExpression("Radius", "Params.fillet3_radius")
doc.recompute()

fillet4 = body.newObject("PartDesign::Fillet", "Fillet003")
fillet4.Base = (fillet3, edges_at(fillet3, [(1.5, -56, 11)]))
fillet4.setExpression("Radius", "Params.fillet4_radius")
doc.recompute()

fillet5 = body.newObject("PartDesign::Fillet", "Fillet004")
fillet5.Base = (fillet4, edges_at(fillet4, [(1.5, -56, 5)]))
fillet5.setExpression("Radius", "Params.fillet5_radius")
doc.recompute()

fillet6 = body.newObject("PartDesign::Fillet", "Fillet005")
fillet6.Base = (fillet5, edges_at(fillet5, [(1.5, -11, 5)]))
fillet6.setExpression("Radius", "Params.fillet6_radius")
doc.recompute()

fillet7 = body.newObject("PartDesign::Fillet", "Fillet006")
fillet7.Base = (fillet6, edges_at(fillet6, [(132.5, -11, 5)]))
fillet7.setExpression("Radius", "Params.fillet7_radius")
doc.recompute()

fillet8 = body.newObject("PartDesign::Fillet", "Fillet007")
fillet8.Base = (fillet7, edges_at(fillet7, [(1.5, -8, 12)]))
fillet8.setExpression("Radius", "Params.fillet8_radius")
doc.recompute()

fillet9 = body.newObject("PartDesign::Fillet", "Fillet008")
fillet9.Base = (fillet8, edges_at(fillet8, [(1.5, -11, 12)]))
fillet9.setExpression("Radius", "Params.fillet9_radius")
doc.recompute()

fillet10 = body.newObject("PartDesign::Fillet", "Fillet009")
fillet10.Base = (fillet9, edges_at(fillet9, [(132.5, -8, 12)]))
fillet10.setExpression("Radius", "Params.fillet10_radius")
doc.recompute()

fillet11 = body.newObject("PartDesign::Fillet", "Fillet010")
fillet11.Base = (fillet10, edges_at(fillet10, [(132.5, -11, 12)]))
fillet11.setExpression("Radius", "Params.fillet11_radius")
doc.recompute()

fillet12 = body.newObject("PartDesign::Fillet", "Fillet011")
fillet12.Base = (fillet11, edges_at(fillet11, [(1.5, -8, 55)]))
fillet12.setExpression("Radius", "Params.fillet12_radius")
doc.recompute()

fillet13 = body.newObject("PartDesign::Fillet", "Fillet012")
fillet13.Base = (fillet12, edges_at(fillet12, [(1.5, -11, 55)]))
fillet13.setExpression("Radius", "Params.fillet13_radius")
doc.recompute()

fillet14 = body.newObject("PartDesign::Fillet", "Fillet013")
fillet14.Base = (fillet13, edges_at(fillet13, [(132.5, -8, 55)]))
fillet14.setExpression("Radius", "Params.fillet14_radius")
doc.recompute()

fillet15 = body.newObject("PartDesign::Fillet", "Fillet014")
fillet15.Base = (fillet14, edges_at(fillet14, [(132.5, -11, 55)]))
fillet15.setExpression("Radius", "Params.fillet15_radius")

# Sketch on XY plane
sketch12 = body.newObject("Sketcher::SketchObject", "Sketch011")
sketch12.AttachmentSupport = (doc.getObject("XY_Plane"), [""])
sketch12.MapMode = "FlatFace"
sketch12.AttachmentOffset = App.Placement(Vector(0, 0, 5), App.Rotation())
sketch12.addGeometry(Part.Circle(Vector(19, -8.5, 0), Vector(0, 0, 1), 1.8), False)
sketch12.addGeometry(Part.Circle(Vector(19, -53.5, 0), Vector(0, 0, 1), 1.8), False)
sketch12.addGeometry(Part.Circle(Vector(119, -53.5, 0), Vector(0, 0, 1), 1.8), False)
sketch12.addGeometry(Part.Circle(Vector(119, -8.5, 0), Vector(0, 0, 1), 1.8), False)
sketch12.addConstraint(Sketcher.Constraint("Equal", 0, 1))
sketch12.addConstraint(Sketcher.Constraint("Equal", 1, 2))
sketch12.addConstraint(Sketcher.Constraint("Equal", 2, 3))
sketch12.addConstraint(Sketcher.Constraint("Horizontal", 1, 3, 2, 3))
sketch12.addConstraint(Sketcher.Constraint("Horizontal", 0, 3, 3, 3))
sketch12.addConstraint(Sketcher.Constraint("Vertical", 0, 3, 1, 3))
sketch12.addConstraint(Sketcher.Constraint("Vertical", 2, 3, 3, 3))
sketch12.addConstraint(Sketcher.Constraint("Diameter", 0, Q("3.5 mm")))
sketch12.addConstraint(Sketcher.Constraint("DistanceX", -1, 1, 0, 3, Q("19 mm")))
sketch12.addConstraint(Sketcher.Constraint("DistanceX", -1, 1, 2, 3, Q("119 mm")))
sketch12.addConstraint(Sketcher.Constraint("DistanceY", 1, 3, 0, 3, Q("45 mm")))
sketch12.addConstraint(Sketcher.Constraint("DistanceY", 0, 3, -1, 1, Q("8.5 mm")))
sketch12.setExpression("Constraints[7]", "Params.sketch12_diameter")
pocket6 = body.newObject("PartDesign::Pocket", "Pocket005")
pocket6.Profile = sketch12
pocket6.setExpression("Length", "Params.pocket6_length")

# Sketch on XY plane
sketch13 = body.newObject("Sketcher::SketchObject", "Sketch012")
sketch13.AttachmentSupport = (doc.getObject("XY_Plane"), [""])
sketch13.MapMode = "FlatFace"
sketch13.AttachmentOffset = App.Placement(Vector(0, 0, 62), App.Rotation())
sketch13.addGeometry(Part.Circle(Vector(26, -6.5, 0), Vector(0, 0, 1), 2.1), False)
sketch13.addGeometry(Part.Circle(Vector(108, -6.5, 0), Vector(0, 0, 1), 2.1), False)
sketch13.addConstraint(Sketcher.Constraint("Equal", 0, 1))
sketch13.addConstraint(Sketcher.Constraint("Horizontal", 0, 3, 1, 3))
sketch13.addConstraint(Sketcher.Constraint("Diameter", 0, Q("4.2 mm")))
sketch13.addConstraint(Sketcher.Constraint("DistanceX", -1, 1, 0, 3, Q("26 mm")))
sketch13.addConstraint(Sketcher.Constraint("DistanceX", -1, 1, 1, 3, Q("108 mm")))
sketch13.addConstraint(Sketcher.Constraint("DistanceY", 0, 3, -1, 1, Q("6.5 mm")))
sketch13.setExpression("Constraints[2]", "Params.sketch13_diameter")
pocket7 = body.newObject("PartDesign::Pocket", "Pocket006")
pocket7.Profile = sketch13
pocket7.setExpression("Length", "Params.pocket7_length")

# Sketch on XY plane
sketch14 = body.newObject("Sketcher::SketchObject", "Sketch013")
sketch14.AttachmentSupport = (doc.getObject("XY_Plane"), [""])
sketch14.MapMode = "FlatFace"
sketch14.addGeometry(Part.ArcOfCircle(Part.Circle(Vector(25, -44, 0), Vector(0, 0, 1), 3), math.radians(-180), math.radians(-90)), False)
sketch14.addGeometry(Part.LineSegment(Vector(22, -44, 0), Vector(22, -20, 0)), False)
sketch14.addGeometry(Part.ArcOfCircle(Part.Circle(Vector(25, -20, 0), Vector(0, 0, 1), 3), math.radians(90), math.radians(180)), False)
sketch14.addGeometry(Part.LineSegment(Vector(25, -17, 0), Vector(34, -17, 0)), False)
sketch14.addGeometry(Part.ArcOfCircle(Part.Circle(Vector(34, -20, 0), Vector(0, 0, 1), 3), math.radians(0), math.radians(90)), False)
sketch14.addGeometry(Part.LineSegment(Vector(37, -20, 0), Vector(37, -44, 0)), False)
sketch14.addGeometry(Part.ArcOfCircle(Part.Circle(Vector(34, -44, 0), Vector(0, 0, 1), 3), math.radians(-90), math.radians(0)), False)
sketch14.addGeometry(Part.LineSegment(Vector(34, -47, 0), Vector(25, -47, 0)), False)
sketch14.addConstraint(Sketcher.Constraint("Tangent", 0, 1, 1, 1))
sketch14.addConstraint(Sketcher.Constraint("Tangent", 1, 2, 2, 2))
sketch14.addConstraint(Sketcher.Constraint("Tangent", 2, 1, 3, 1))
sketch14.addConstraint(Sketcher.Constraint("Tangent", 3, 2, 4, 2))
sketch14.addConstraint(Sketcher.Constraint("Tangent", 4, 1, 5, 1))
sketch14.addConstraint(Sketcher.Constraint("Tangent", 5, 2, 6, 2))
sketch14.addConstraint(Sketcher.Constraint("Tangent", 6, 1, 7, 1))
sketch14.addConstraint(Sketcher.Constraint("Tangent", 7, 2, 0, 2))
sketch14.addConstraint(Sketcher.Constraint("Vertical", 1))
sketch14.addConstraint(Sketcher.Constraint("Horizontal", 3))
sketch14.addConstraint(Sketcher.Constraint("Vertical", 5))
sketch14.addConstraint(Sketcher.Constraint("Horizontal", 7))
sketch14.addConstraint(Sketcher.Constraint("Equal", 0, 2))
sketch14.addConstraint(Sketcher.Constraint("Equal", 2, 4))
sketch14.addConstraint(Sketcher.Constraint("Equal", 4, 6))
sketch14.addConstraint(Sketcher.Constraint("Radius", 0, Q("3.000001 mm")))
sketch14.addConstraint(Sketcher.Constraint("DistanceX", 3, 1, 3, 2, Q("9 mm")))
sketch14.addConstraint(Sketcher.Constraint("DistanceY", 1, 1, 1, 2, Q("24 mm")))
sketch14.addConstraint(Sketcher.Constraint("DistanceX", -1, 1, 0, 3, Q("25.000001 mm")))
sketch14.addConstraint(Sketcher.Constraint("DistanceY", 0, 3, -1, 1, Q("43.999999 mm")))
sketch14.setExpression("Constraints[15]", "Params.sketch14_radius")
sketch14.setExpression("Constraints[16]", "Params.sketch14_width")
sketch14.setExpression("Constraints[17]", "Params.sketch14_height")
pocket8 = body.newObject("PartDesign::Pocket", "Pocket007")
pocket8.Profile = sketch14
pocket8.setExpression("Length", "Params.pocket8_length")
pocket8.Reversed = True
doc.recompute()

fillet16 = body.newObject("PartDesign::Fillet", "Fillet015")
fillet16.Base = (pocket8, edges_at(pocket8, [
    (22, -32, 0),
    (22.879, -46.121, 0),
    (29.5, -47, 0),
    (36.121, -46.121, 0),
    (37, -32, 0),
    (36.121, -17.879, 0),
    (29.5, -17, 0),
    (22.879, -17.879, 0),
]))
fillet16.setExpression("Radius", "Params.fillet16_radius")
doc.recompute()

fillet17 = body.newObject("PartDesign::Fillet", "Fillet016")
fillet17.Base = (fillet16, edges_at(fillet16, [
    (22, -32, 5),
    (22.879, -17.879, 5),
    (29.5, -17, 5),
    (36.121, -17.879, 5),
    (37, -32, 5),
    (36.121, -46.121, 5),
    (29.5, -47, 5),
    (22.879, -46.121, 5),
]))
fillet17.setExpression("Radius", "Params.fillet17_radius")

doc.recompute()
